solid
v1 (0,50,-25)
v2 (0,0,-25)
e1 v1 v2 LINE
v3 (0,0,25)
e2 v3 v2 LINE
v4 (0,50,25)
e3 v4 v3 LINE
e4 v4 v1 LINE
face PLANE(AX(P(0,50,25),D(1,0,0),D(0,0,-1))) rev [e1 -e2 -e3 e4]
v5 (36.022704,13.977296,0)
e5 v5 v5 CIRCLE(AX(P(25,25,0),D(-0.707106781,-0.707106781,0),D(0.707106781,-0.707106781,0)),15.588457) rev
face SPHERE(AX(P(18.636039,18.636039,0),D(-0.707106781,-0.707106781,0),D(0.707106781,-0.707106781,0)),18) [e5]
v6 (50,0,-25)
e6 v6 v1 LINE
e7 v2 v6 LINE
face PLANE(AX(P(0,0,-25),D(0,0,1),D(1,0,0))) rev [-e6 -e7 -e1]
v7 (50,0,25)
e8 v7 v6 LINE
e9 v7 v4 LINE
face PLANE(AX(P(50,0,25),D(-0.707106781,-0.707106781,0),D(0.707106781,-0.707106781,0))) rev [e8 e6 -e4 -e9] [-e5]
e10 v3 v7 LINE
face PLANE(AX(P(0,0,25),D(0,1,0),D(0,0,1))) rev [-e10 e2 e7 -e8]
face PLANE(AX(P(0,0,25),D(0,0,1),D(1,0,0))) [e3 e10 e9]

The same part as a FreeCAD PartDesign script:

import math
import FreeCAD as App
import Part
import Sketcher
from FreeCAD import Vector
Q = App.Units.Quantity

doc = App.newDocument("Part")
params = doc.addObject("Spreadsheet::Sheet", "Params")
for row, (alias, value) in enumerate([
    ("sketch1_width", "50 mm"),
    ("pad1_length", "50 mm"),
    ("sketch2_radius", "18 mm"),
    ("revolution_angle", "360 deg"),
], start=1):
    params.set(f"A{row}", alias)
    params.set(f"B{row}", "=" + value)
    params.setAlias(f"B{row}", alias)

body = doc.addObject("PartDesign::Body", "Body")

sketch1 = doc.addObject("Sketcher::SketchObject", "Sketch")
body.addObject(sketch1)
sketch1.AttachmentSupport = (doc.XY_Plane, [""])
sketch1.MapMode = "FlatFace"
sketch1.addGeometry([
    Part.LineSegment(Vector(0, 50, 0), Vector(0, 0, 0)),
    Part.LineSegment(Vector(0, 0, 0), Vector(50, 0, 0)),
    Part.LineSegment(Vector(50, 0, 0), Vector(0, 50, 0)),
], False)
sketch1.addConstraint([
    Sketcher.Constraint("Coincident", 0, 2, 1, 1),
    Sketcher.Constraint("Coincident", 1, 2, 2, 1),
    Sketcher.Constraint("Coincident", 2, 2, 0, 1),
    Sketcher.Constraint("Vertical", 0),
    Sketcher.Constraint("Horizontal", 1),
    Sketcher.Constraint("Coincident", 0, 2, -1, 1),
    Sketcher.Constraint("Equal", 1, 0),
    Sketcher.Constraint("DistanceX", 1, 1, 1, 2, 50.0),
])
sketch1.setExpression("Constraints[7]", "Params.sketch1_width")
pad1 = doc.addObject("PartDesign::Pad", "Pad")
body.addObject(pad1)
pad1.Profile = sketch1
pad1.setExpression("Length", "Params.pad1_length")
pad1.Midplane = True

sketch2 = doc.addObject("Sketcher::SketchObject", "Sketch001")
body.addObject(sketch2)
sketch2.AttachmentSupport = (doc.XY_Plane, [""])
sketch2.MapMode = "FlatFace"
sketch2.addGeometry([
    Part.LineSegment(Vector(6, 31, 0), Vector(31, 6, 0)),
    Part.ArcOfCircle(Part.Circle(Vector(19, 19, 0), Vector(0, 0, 1), 18), math.radians(-45), math.radians(135)),
], False)
sketch2.addGeometry(Part.LineSegment(Vector(6, 31, 0), Vector(31, 6, 0)), True)
sketch2.addConstraint([
    Sketcher.Constraint("Coincident", 0, 1, 1, 2),
    Sketcher.Constraint("Coincident", 1, 1, 0, 2),
    Sketcher.Constraint("Coincident", 2, 1, 0, 1),
    Sketcher.Constraint("Coincident", 2, 2, 1, 1),
    Sketcher.Constraint("Radius", 1, 18.0),
    Sketcher.Constraint("Angle", 0, Q("-45 deg")),
    Sketcher.Constraint("DistanceX", -1, 1, 1, 3, 18.636039),
    Sketcher.Constraint("DistanceY", -1, 1, 1, 3, 18.636039),
    Sketcher.Constraint("DistanceY", -1, 1, 0, 1, 31.363961),
])
sketch2.setExpression("Constraints[4]", "Params.sketch2_radius")
revolution = doc.addObject("PartDesign::Revolution", "Revolution")
body.addObject(revolution)
revolution.Profile = sketch2
revolution.ReferenceAxis = (sketch2, ["Axis0"])
revolution.setExpression("Angle", "Params.revolution_angle")

doc.recompute()
